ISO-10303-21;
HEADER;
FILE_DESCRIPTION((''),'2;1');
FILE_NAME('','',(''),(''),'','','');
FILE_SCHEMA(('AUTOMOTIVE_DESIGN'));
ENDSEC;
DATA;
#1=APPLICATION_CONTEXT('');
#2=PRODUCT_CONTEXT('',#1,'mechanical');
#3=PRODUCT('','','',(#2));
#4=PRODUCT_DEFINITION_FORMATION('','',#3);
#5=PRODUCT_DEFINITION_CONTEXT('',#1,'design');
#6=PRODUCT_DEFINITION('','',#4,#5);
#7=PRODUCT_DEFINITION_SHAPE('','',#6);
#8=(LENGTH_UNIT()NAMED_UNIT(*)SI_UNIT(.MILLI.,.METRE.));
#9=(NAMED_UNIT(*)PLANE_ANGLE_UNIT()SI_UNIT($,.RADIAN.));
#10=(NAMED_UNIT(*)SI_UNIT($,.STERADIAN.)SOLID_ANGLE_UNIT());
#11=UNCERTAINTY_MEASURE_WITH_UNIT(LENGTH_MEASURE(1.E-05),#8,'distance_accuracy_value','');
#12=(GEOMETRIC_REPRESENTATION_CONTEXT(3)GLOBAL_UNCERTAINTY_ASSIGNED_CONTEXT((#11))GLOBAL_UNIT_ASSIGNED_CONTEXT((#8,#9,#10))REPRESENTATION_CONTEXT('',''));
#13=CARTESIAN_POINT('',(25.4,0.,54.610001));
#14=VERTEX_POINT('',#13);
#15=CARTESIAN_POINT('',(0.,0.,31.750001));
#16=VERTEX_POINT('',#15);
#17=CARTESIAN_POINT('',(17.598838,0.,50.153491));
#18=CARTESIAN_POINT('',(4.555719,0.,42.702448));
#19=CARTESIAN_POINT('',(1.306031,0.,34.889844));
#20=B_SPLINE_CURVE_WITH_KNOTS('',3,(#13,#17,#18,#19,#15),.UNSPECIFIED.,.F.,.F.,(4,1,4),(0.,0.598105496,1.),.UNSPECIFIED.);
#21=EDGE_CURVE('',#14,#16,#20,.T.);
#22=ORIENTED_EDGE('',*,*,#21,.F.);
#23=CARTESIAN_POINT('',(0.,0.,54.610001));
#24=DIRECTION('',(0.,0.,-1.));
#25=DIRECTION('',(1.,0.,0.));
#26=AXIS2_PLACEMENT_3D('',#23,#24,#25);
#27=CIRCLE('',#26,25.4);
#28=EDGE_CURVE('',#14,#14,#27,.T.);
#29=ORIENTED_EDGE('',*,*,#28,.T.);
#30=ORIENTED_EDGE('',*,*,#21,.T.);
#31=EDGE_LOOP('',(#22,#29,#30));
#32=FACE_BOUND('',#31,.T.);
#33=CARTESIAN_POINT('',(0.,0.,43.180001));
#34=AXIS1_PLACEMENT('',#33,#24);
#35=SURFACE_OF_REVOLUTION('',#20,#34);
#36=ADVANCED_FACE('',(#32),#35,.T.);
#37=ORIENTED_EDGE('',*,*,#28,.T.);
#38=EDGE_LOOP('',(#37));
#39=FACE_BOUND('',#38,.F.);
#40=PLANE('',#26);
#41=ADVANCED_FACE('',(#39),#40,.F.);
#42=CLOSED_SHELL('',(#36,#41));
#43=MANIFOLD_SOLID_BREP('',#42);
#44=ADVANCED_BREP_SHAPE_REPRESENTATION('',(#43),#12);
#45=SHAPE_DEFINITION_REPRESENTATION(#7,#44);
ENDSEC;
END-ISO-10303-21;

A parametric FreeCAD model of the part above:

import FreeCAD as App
import Part
import Sketcher

V = App.Vector

doc = App.newDocument("Part")
body = doc.addObject("PartDesign::Body", "Body")

# Sketch on XZ plane
sketch1 = body.newObject("Sketcher::SketchObject", "Sketch")
sketch1.AttachmentSupport = (doc.getObject("XZ_Plane"), [""])
sketch1.MapMode = "FlatFace"
sketch1.addGeometry([
    Part.LineSegment(V(25.4, 54.610001, 0), V(0, 54.610001, 0)),
    Part.LineSegment(V(0, 54.610001, 0), V(0, 31.750001, 0)),
    Part.BSplineCurve([V(25.4, 54.610001, 0), V(17.598838, 50.153491, 0), V(4.555719, 42.702448, 0), V(1.306031, 34.889844, 0), V(0, 31.750001, 0)], [4, 1, 4], [0, 0.598105496, 1], False, 3, [1, 1, 1, 1, 1], False),
], False)
sketch1.addConstraint([
    Sketcher.Constraint("Block", 2),
    Sketcher.Constraint("Coincident", 0, 2, 1, 1),
    Sketcher.Constraint("Coincident", 1, 2, 2, 2),
    Sketcher.Constraint("Coincident", 2, 1, 0, 1),
    Sketcher.Constraint("Horizontal", 0),
    Sketcher.Constraint("Vertical", 1),
])
revolution = body.newObject("PartDesign::Revolution", "Revolution")
revolution.Profile = sketch1
revolution.ReferenceAxis = (sketch1, ["V_Axis"])
revolution.Angle = 360

doc.recompute()
